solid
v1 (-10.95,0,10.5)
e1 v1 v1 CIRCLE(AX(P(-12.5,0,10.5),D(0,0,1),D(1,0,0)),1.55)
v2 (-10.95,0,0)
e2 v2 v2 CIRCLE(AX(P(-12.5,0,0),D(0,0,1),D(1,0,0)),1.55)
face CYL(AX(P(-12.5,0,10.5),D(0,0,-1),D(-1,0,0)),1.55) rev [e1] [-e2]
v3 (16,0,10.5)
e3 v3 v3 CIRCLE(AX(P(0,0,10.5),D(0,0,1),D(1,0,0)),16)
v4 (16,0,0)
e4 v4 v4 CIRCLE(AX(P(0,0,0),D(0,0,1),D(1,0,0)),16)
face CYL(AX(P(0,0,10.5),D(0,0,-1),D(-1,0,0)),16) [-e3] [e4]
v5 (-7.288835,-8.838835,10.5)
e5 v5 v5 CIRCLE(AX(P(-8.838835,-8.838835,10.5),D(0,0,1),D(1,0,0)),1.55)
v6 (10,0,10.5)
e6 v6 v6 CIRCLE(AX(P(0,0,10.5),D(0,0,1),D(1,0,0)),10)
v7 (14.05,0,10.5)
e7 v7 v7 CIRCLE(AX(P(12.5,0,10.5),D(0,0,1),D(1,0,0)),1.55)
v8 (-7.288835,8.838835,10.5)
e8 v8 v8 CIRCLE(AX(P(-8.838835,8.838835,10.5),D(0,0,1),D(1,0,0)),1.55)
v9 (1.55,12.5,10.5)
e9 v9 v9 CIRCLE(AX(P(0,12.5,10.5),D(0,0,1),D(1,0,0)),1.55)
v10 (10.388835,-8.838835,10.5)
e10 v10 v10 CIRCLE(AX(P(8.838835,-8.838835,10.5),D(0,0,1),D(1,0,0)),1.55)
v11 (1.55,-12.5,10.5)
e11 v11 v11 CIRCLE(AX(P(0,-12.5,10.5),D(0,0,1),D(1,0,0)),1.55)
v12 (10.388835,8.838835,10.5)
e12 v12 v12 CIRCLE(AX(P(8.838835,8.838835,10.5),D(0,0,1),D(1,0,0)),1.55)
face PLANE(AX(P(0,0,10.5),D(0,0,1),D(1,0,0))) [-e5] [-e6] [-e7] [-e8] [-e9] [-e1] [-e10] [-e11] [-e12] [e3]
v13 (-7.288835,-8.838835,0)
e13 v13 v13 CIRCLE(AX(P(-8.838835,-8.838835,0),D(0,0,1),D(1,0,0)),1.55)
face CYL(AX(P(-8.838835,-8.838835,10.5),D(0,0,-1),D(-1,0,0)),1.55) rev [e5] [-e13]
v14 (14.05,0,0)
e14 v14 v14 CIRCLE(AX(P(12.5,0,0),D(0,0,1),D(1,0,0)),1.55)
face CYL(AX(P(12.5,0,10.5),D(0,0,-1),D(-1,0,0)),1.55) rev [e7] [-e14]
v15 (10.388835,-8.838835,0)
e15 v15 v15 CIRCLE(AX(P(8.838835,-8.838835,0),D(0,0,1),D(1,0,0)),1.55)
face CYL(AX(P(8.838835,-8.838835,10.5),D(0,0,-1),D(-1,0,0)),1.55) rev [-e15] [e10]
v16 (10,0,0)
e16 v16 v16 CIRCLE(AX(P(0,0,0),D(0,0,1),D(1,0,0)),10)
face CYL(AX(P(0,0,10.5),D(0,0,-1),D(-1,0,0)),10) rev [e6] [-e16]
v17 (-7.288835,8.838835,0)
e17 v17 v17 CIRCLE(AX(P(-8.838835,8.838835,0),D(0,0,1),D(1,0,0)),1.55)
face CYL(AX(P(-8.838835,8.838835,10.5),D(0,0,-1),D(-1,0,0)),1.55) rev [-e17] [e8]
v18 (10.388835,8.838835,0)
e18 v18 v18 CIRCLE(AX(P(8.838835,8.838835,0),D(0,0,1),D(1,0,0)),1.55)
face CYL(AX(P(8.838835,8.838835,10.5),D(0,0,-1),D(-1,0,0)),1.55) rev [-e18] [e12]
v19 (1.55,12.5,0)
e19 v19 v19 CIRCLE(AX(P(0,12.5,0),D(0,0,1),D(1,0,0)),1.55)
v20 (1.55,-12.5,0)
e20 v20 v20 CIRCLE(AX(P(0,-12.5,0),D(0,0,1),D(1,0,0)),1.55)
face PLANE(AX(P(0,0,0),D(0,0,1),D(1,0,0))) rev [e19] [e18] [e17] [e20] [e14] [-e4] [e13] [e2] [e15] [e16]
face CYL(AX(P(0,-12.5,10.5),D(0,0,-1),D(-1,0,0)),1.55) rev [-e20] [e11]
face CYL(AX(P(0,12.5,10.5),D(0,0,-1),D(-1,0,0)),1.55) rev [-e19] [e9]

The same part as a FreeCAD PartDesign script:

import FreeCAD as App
import Part
import Sketcher

doc = App.newDocument("Part")
body = doc.addObject("PartDesign::Body", "Body")

sketch1 = body.newObject("Sketcher::SketchObject", "Sketch")
sketch1.AttachmentSupport = (doc.getObject("XY_Plane"), [""])
sketch1.MapMode = "FlatFace"
sketch1.addGeometry(Part.Circle(App.Vector(0, 0, 0), App.Vector(0, 0, 1), 16), False)
sketch1.addGeometry(Part.Circle(App.Vector(-8.8, -8.8, 0), App.Vector(0, 0, 1), 1.6), False)
sketch1.addGeometry(Part.Circle(App.Vector(0, -12.5, 0), App.Vector(0, 0, 1), 1.6), False)
sketch1.addGeometry(Part.Circle(App.Vector(8.8, -8.8, 0), App.Vector(0, 0, 1), 1.6), False)
sketch1.addGeometry(Part.Circle(App.Vector(-12.5, 0, 0), App.Vector(0, 0, 1), 1.6), False)
sketch1.addGeometry(Part.Circle(App.Vector(-8.8, 8.8, 0), App.Vector(0, 0, 1), 1.6), False)
sketch1.addGeometry(Part.Circle(App.Vector(0, 0, 0), App.Vector(0, 0, 1), 10), False)
sketch1.addGeometry(Part.Circle(App.Vector(12.5, 0, 0), App.Vector(0, 0, 1), 1.6), False)
sketch1.addGeometry(Part.Circle(App.Vector(0, 12.5, 0), App.Vector(0, 0, 1), 1.6), False)
sketch1.addGeometry(Part.Circle(App.Vector(8.8, 8.8, 0), App.Vector(0, 0, 1), 1.6), False)
sketch1.addConstraint(Sketcher.Constraint("Coincident", 0, 3, -1, 1))
sketch1.addConstraint(Sketcher.Constraint("Coincident", 6, 3, -1, 1))
sketch1.addConstraint(Sketcher.Constraint("Equal", 1, 2))
sketch1.addConstraint(Sketcher.Constraint("Equal", 2, 3))
sketch1.addConstraint(Sketcher.Constraint("Equal", 3, 4))
sketch1.addConstraint(Sketcher.Constraint("Equal", 4, 5))
sketch1.addConstraint(Sketcher.Constraint("Equal", 5, 7))
sketch1.addConstraint(Sketcher.Constraint("Equal", 7, 8))
sketch1.addConstraint(Sketcher.Constraint("Equal", 8, 9))
sketch1.addConstraint(Sketcher.Constraint("Symmetric", 3, 3, 5, 3, -1, 1))
sketch1.addConstraint(Sketcher.Constraint("Symmetric", 4, 3, 7, 3, -1, 1))
sketch1.addConstraint(Sketcher.Constraint("Symmetric", 2, 3, 8, 3, -1, 1))
sketch1.addConstraint(Sketcher.Constraint("Symmetric", 1, 3, 9, 3, -1, 1))
sketch1.addConstraint(Sketcher.Constraint("Symmetric", 1, 3, 3, 3, -2))
sketch1.addConstraint(Sketcher.Constraint("PointOnObject", 2, 3, -2))
sketch1.addConstraint(Sketcher.Constraint("PointOnObject", 4, 3, -1))
sketch1.addConstraint(Sketcher.Constraint("Diameter", 0, 32.0))
sketch1.addConstraint(Sketcher.Constraint("Diameter", 6, 20.0))
sketch1.addConstraint(Sketcher.Constraint("Diameter", 1, 3.1))
sketch1.addConstraint(Sketcher.Constraint("DistanceY", 2, 3, -1, 1, 12.5))
sketch1.addConstraint(Sketcher.Constraint("DistanceX", 4, 3, -1, 1, 12.5))
sketch1.addConstraint(Sketcher.Constraint("DistanceX", 1, 3, 3, 3, 17.67767))
sketch1.addConstraint(Sketcher.Constraint("DistanceY", 1, 3, 5, 3, 17.67767))
pad1 = body.newObject("PartDesign::Pad", "Pad")
pad1.Profile = sketch1
pad1.Length = 10.5

doc.recompute()
